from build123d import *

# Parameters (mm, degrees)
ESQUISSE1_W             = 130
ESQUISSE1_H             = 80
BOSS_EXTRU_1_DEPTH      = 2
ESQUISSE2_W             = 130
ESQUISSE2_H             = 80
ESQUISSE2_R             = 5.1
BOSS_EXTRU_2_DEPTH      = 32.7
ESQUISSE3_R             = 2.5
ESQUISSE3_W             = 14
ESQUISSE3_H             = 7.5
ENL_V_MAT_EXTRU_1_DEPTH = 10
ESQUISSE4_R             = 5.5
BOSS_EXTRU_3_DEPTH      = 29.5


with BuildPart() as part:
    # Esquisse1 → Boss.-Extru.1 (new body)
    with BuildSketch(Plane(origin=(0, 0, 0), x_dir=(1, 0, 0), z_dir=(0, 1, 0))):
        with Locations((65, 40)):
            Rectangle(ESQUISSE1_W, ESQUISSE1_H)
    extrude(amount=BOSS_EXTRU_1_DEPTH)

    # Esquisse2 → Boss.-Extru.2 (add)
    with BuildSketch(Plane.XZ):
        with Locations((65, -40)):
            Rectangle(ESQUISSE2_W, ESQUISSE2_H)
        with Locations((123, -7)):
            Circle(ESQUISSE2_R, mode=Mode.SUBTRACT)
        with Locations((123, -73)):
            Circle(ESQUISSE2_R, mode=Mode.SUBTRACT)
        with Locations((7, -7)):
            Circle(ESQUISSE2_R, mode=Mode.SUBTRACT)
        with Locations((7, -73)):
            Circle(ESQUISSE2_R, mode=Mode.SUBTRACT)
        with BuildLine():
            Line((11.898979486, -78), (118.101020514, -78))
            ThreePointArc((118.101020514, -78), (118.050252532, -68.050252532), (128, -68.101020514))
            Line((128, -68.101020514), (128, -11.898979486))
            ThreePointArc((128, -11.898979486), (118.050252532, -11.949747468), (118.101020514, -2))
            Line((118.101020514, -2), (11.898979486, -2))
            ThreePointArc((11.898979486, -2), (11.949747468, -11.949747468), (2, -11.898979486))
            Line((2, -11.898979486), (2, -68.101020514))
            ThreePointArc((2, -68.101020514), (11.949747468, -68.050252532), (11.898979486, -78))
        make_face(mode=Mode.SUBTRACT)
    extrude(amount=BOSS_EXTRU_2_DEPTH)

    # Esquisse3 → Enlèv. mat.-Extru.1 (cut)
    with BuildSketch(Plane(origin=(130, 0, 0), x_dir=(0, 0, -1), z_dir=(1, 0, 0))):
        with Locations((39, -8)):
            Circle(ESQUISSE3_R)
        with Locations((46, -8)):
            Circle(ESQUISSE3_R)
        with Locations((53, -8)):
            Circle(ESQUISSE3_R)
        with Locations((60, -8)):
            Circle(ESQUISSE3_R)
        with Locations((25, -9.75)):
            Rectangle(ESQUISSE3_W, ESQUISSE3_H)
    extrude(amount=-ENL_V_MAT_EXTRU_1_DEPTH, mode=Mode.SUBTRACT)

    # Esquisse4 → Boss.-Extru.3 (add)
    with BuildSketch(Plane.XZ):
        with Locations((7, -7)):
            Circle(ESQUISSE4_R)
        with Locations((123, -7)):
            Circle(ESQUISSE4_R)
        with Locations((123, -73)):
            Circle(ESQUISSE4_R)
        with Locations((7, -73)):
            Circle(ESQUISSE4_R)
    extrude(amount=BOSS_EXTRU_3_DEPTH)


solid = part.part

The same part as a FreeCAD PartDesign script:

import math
import FreeCAD as App
import Part
import Sketcher
from FreeCAD import Vector
Q = App.Units.Quantity

doc = App.newDocument("Part")
body = doc.addObject("PartDesign::Body", "Body")

# Sketch on XZ plane
sketch1 = doc.addObject("Sketcher::SketchObject", "Sketch")
body.addObject(sketch1)
sketch1.AttachmentSupport = (doc.XZ_Plane, [""])
sketch1.MapMode = "FlatFace"
sketch1.addGeometry([
    Part.LineSegment(Vector(0, -80, 0), Vector(0, 0, 0)),
    Part.LineSegment(Vector(0, 0, 0), Vector(130, 0, 0)),
    Part.LineSegment(Vector(130, 0, 0), Vector(130, -80, 0)),
    Part.LineSegment(Vector(130, -80, 0), Vector(0, -80, 0)),
], False)
sketch1.addConstraint([
    Sketcher.Constraint("Coincident", 0, 2, 1, 1),
    Sketcher.Constraint("Coincident", 1, 2, 2, 1),
    Sketcher.Constraint("Coincident", 2, 2, 3, 1),
    Sketcher.Constraint("Coincident", 3, 2, 0, 1),
    Sketcher.Constraint("Vertical", 0),
    Sketcher.Constraint("Horizontal", 1),
    Sketcher.Constraint("Vertical", 2),
    Sketcher.Constraint("Horizontal", 3),
    Sketcher.Constraint("Coincident", 0, 2, -1, 1),
    Sketcher.Constraint("DistanceX", 1, 1, 1, 2, Q("130 mm")),
    Sketcher.Constraint("DistanceY", 0, 1, 0, 2, Q("80 mm")),
])
pad1 = doc.addObject("PartDesign::Pad", "Pad")
body.addObject(pad1)
pad1.Profile = sketch1
pad1.Length = 2
pad1.Reversed = True

# Sketch on XZ plane
sketch2 = doc.addObject("Sketcher::SketchObject", "Sketch001")
body.addObject(sketch2)
sketch2.AttachmentSupport = (doc.XZ_Plane, [""])
sketch2.MapMode = "FlatFace"
sketch2.addGeometry([
    Part.LineSegment(Vector(0, 0, 0), Vector(0, -80, 0)),  # 0
    Part.LineSegment(Vector(0, -80, 0), Vector(130, -80, 0)),  # 1
    Part.LineSegment(Vector(130, -80, 0), Vector(130, 0, 0)),  # 2
    Part.LineSegment(Vector(130, 0, 0), Vector(0, 0, 0)),  # 3
    Part.Circle(Vector(7, -73, 0), Vector(0, 0, 1), 5.1),  # 4
    Part.Circle(Vector(123, -73, 0), Vector(0, 0, 1), 5.1),  # 5
    Part.Circle(Vector(7, -7, 0), Vector(0, 0, 1), 5.1),  # 6
    Part.LineSegment(Vector(118.101021, -78, 0), Vector(11.898979, -78, 0)),  # 7
    Part.ArcOfCircle(Part.Circle(Vector(7, -73, 0), Vector(0, 0, 1), 7), math.radians(-45.584691), math.radians(135.584691)),  # 8
    Part.LineSegment(Vector(2, -68.101021, 0), Vector(2, -11.898979, 0)),  # 9
    Part.ArcOfCircle(Part.Circle(Vector(7, -7, 0), Vector(0, 0, 1), 7), math.radians(-135.584691), math.radians(45.584691)),  # 10
    Part.LineSegment(Vector(11.898979, -2, 0), Vector(118.101021, -2, 0)),  # 11
    Part.ArcOfCircle(Part.Circle(Vector(123, -7, 0), Vector(0, 0, 1), 7), math.radians(134.415309), math.radians(315.584691)),  # 12
    Part.LineSegment(Vector(128, -11.898979, 0), Vector(128, -68.101021, 0)),  # 13
    Part.ArcOfCircle(Part.Circle(Vector(123, -73, 0), Vector(0, 0, 1), 7), math.radians(44.415309), math.radians(225.584691)),  # 14
    Part.Circle(Vector(123, -7, 0), Vector(0, 0, 1), 5.1),  # 15
], False)
sketch2.addConstraint([
    Sketcher.Constraint("Coincident", 0, 2, 1, 1),
    Sketcher.Constraint("Coincident", 1, 2, 2, 1),
    Sketcher.Constraint("Coincident", 2, 2, 3, 1),
    Sketcher.Constraint("Coincident", 3, 2, 0, 1),
    Sketcher.Constraint("Coincident", 7, 2, 8, 1),
    Sketcher.Constraint("Coincident", 8, 2, 9, 1),
    Sketcher.Constraint("Coincident", 9, 2, 10, 1),
    Sketcher.Constraint("Coincident", 10, 2, 11, 1),
    Sketcher.Constraint("Coincident", 11, 2, 12, 1),
    Sketcher.Constraint("Coincident", 12, 2, 13, 1),
    Sketcher.Constraint("Coincident", 13, 2, 14, 1),
    Sketcher.Constraint("Coincident", 14, 2, 7, 1),
    Sketcher.Constraint("Vertical", 0),
    Sketcher.Constraint("Horizontal", 1),
    Sketcher.Constraint("Vertical", 2),
    Sketcher.Constraint("Horizontal", 3),
    Sketcher.Constraint("Horizontal", 7),
    Sketcher.Constraint("Vertical", 9),
    Sketcher.Constraint("Horizontal", 11),
    Sketcher.Constraint("Vertical", 13),
    Sketcher.Constraint("Coincident", 3, 2, -1, 1),
    Sketcher.Constraint("Coincident", 8, 3, 4, 3),
    Sketcher.Constraint("Coincident", 10, 3, 6, 3),
    Sketcher.Constraint("Coincident", 14, 3, 5, 3),
    Sketcher.Constraint("Coincident", 15, 3, 12, 3),
    Sketcher.Constraint("Equal", 4, 5),
    Sketcher.Constraint("Equal", 5, 6),
    Sketcher.Constraint("Equal", 8, 10),
    Sketcher.Constraint("Equal", 10, 12),
    Sketcher.Constraint("Equal", 12, 14),
    Sketcher.Constraint("Equal", 6, 15),
    Sketcher.Constraint("Horizontal", 4, 3, 5, 3),
    Sketcher.Constraint("Horizontal", 10, 3, 12, 3),
    Sketcher.Constraint("Horizontal", 9, 2, 12, 2),
    Sketcher.Constraint("Horizontal", 8, 2, 13, 2),
    Sketcher.Constraint("Vertical", 4, 3, 6, 3),
    Sketcher.Constraint("Vertical", 7, 2, 10, 2),
    Sketcher.Constraint("Radius", 8, Q("7 mm")),
    Sketcher.Constraint("Diameter", 4, Q("10.2 mm")),
    Sketcher.Constraint("DistanceX", 1, 1, 1, 2, Q("130 mm")),
    Sketcher.Constraint("DistanceY", 0, 2, 0, 1, Q("80 mm")),
    Sketcher.Constraint("DistanceX", -1, 1, 4, 3, Q("7 mm")),
    Sketcher.Constraint("DistanceY", 4, 3, -1, 1, Q("73 mm")),
    Sketcher.Constraint("DistanceX", -1, 1, 5, 3, Q("123 mm")),
    Sketcher.Constraint("DistanceY", 6, 3, -1, 1, Q("7 mm")),
    Sketcher.Constraint("DistanceY", 7, 2, -1, 1, Q("78 mm")),
    Sketcher.Constraint("DistanceX", -1, 1, 8, 2, Q("2 mm")),
])
pad2 = doc.addObject("PartDesign::Pad", "Pad001")
body.addObject(pad2)
pad2.Profile = sketch2
pad2.Length = 32.7

# Sketch on YZ plane
sketch3 = doc.addObject("Sketcher::SketchObject", "Sketch002")
body.addObject(sketch3)
sketch3.AttachmentSupport = (doc.YZ_Plane, [""])
sketch3.MapMode = "FlatFace"
sketch3.AttachmentOffset = App.Placement(Vector(0, 0, 130), App.Rotation())
sketch3.addGeometry([
    Part.Circle(Vector(-8, -39, 0), Vector(0, 0, 1), 2.5),  # 0
    Part.Circle(Vector(-8, -46, 0), Vector(0, 0, 1), 2.5),  # 1
    Part.Circle(Vector(-8, -53, 0), Vector(0, 0, 1), 2.5),  # 2
    Part.Circle(Vector(-8, -60, 0), Vector(0, 0, 1), 2.5),  # 3
    Part.LineSegment(Vector(-6, -18, 0), Vector(-13.5, -18, 0)),  # 4
    Part.LineSegment(Vector(-13.5, -18, 0), Vector(-13.5, -32, 0)),  # 5
    Part.LineSegment(Vector(-13.5, -32, 0), Vector(-6, -32, 0)),  # 6
    Part.LineSegment(Vector(-6, -32, 0), Vector(-6, -18, 0)),  # 7
], False)
sketch3.addConstraint([
    Sketcher.Constraint("Coincident", 4, 2, 5, 1),
    Sketcher.Constraint("Coincident", 5, 2, 6, 1),
    Sketcher.Constraint("Coincident", 6, 2, 7, 1),
    Sketcher.Constraint("Coincident", 7, 2, 4, 1),
    Sketcher.Constraint("Horizontal", 4),
    Sketcher.Constraint("Vertical", 5),
    Sketcher.Constraint("Horizontal", 6),
    Sketcher.Constraint("Vertical", 7),
    Sketcher.Constraint("Equal", 0, 1),
    Sketcher.Constraint("Equal", 1, 2),
    Sketcher.Constraint("Equal", 2, 3),
    Sketcher.Constraint("Vertical", 0, 3, 1, 3),
    Sketcher.Constraint("Vertical", 1, 3, 2, 3),
    Sketcher.Constraint("Vertical", 2, 3, 3, 3),
    Sketcher.Constraint("Diameter", 0, Q("5 mm")),
    Sketcher.Constraint("DistanceY", 5, 2, 5, 1, Q("14 mm")),
    Sketcher.Constraint("DistanceX", 4, 2, 4, 1, Q("7.5 mm")),
    Sketcher.Constraint("DistanceX", 0, 3, -1, 1, Q("8 mm")),
    Sketcher.Constraint("DistanceY", 0, 3, -1, 1, Q("39 mm")),
    Sketcher.Constraint("DistanceY", 1, 3, -1, 1, Q("46 mm")),
    Sketcher.Constraint("DistanceY", 2, 3, -1, 1, Q("53 mm")),
    Sketcher.Constraint("DistanceY", 3, 3, -1, 1, Q("60 mm")),
    Sketcher.Constraint("DistanceY", 4, 2, -1, 1, Q("18 mm")),
    Sketcher.Constraint("DistanceX", 6, 2, -1, 1, Q("6 mm")),
])
pocket1 = doc.addObject("PartDesign::Pocket", "Pocket")
body.addObject(pocket1)
pocket1.Profile = sketch3
pocket1.Length = 10

# Sketch on XZ plane
sketch4 = doc.addObject("Sketcher::SketchObject", "Sketch003")
body.addObject(sketch4)
sketch4.AttachmentSupport = (doc.XZ_Plane, [""])
sketch4.MapMode = "FlatFace"
sketch4.addGeometry([
    Part.Circle(Vector(7, -7, 0), Vector(0, 0, 1), 5.5),
    Part.Circle(Vector(123, -7, 0), Vector(0, 0, 1), 5.5),
    Part.Circle(Vector(123, -73, 0), Vector(0, 0, 1), 5.5),
    Part.Circle(Vector(7, -73, 0), Vector(0, 0, 1), 5.5),
], False)
sketch4.addConstraint([
    Sketcher.Constraint("Equal", 0, 1),
    Sketcher.Constraint("Equal", 1, 2),
    Sketcher.Constraint("Equal", 2, 3),
    Sketcher.Constraint("Horizontal", 0, 3, 1, 3),
    Sketcher.Constraint("Horizontal", 2, 3, 3, 3),
    Sketcher.Constraint("Vertical", 1, 3, 2, 3),
    Sketcher.Constraint("Vertical", 0, 3, 3, 3),
    Sketcher.Constraint("Diameter", 0, Q("11 mm")),
    Sketcher.Constraint("DistanceX", -1, 1, 0, 3, Q("7 mm")),
    Sketcher.Constraint("DistanceY", 0, 3, -1, 1, Q("7 mm")),
    Sketcher.Constraint("DistanceX", -1, 1, 1, 3, Q("123 mm")),
    Sketcher.Constraint("DistanceY", 2, 3, -1, 1, Q("73 mm")),
])
pad3 = doc.addObject("PartDesign::Pad", "Pad002")
body.addObject(pad3)
pad3.Profile = sketch4
pad3.Length = 29.5

doc.recompute()
